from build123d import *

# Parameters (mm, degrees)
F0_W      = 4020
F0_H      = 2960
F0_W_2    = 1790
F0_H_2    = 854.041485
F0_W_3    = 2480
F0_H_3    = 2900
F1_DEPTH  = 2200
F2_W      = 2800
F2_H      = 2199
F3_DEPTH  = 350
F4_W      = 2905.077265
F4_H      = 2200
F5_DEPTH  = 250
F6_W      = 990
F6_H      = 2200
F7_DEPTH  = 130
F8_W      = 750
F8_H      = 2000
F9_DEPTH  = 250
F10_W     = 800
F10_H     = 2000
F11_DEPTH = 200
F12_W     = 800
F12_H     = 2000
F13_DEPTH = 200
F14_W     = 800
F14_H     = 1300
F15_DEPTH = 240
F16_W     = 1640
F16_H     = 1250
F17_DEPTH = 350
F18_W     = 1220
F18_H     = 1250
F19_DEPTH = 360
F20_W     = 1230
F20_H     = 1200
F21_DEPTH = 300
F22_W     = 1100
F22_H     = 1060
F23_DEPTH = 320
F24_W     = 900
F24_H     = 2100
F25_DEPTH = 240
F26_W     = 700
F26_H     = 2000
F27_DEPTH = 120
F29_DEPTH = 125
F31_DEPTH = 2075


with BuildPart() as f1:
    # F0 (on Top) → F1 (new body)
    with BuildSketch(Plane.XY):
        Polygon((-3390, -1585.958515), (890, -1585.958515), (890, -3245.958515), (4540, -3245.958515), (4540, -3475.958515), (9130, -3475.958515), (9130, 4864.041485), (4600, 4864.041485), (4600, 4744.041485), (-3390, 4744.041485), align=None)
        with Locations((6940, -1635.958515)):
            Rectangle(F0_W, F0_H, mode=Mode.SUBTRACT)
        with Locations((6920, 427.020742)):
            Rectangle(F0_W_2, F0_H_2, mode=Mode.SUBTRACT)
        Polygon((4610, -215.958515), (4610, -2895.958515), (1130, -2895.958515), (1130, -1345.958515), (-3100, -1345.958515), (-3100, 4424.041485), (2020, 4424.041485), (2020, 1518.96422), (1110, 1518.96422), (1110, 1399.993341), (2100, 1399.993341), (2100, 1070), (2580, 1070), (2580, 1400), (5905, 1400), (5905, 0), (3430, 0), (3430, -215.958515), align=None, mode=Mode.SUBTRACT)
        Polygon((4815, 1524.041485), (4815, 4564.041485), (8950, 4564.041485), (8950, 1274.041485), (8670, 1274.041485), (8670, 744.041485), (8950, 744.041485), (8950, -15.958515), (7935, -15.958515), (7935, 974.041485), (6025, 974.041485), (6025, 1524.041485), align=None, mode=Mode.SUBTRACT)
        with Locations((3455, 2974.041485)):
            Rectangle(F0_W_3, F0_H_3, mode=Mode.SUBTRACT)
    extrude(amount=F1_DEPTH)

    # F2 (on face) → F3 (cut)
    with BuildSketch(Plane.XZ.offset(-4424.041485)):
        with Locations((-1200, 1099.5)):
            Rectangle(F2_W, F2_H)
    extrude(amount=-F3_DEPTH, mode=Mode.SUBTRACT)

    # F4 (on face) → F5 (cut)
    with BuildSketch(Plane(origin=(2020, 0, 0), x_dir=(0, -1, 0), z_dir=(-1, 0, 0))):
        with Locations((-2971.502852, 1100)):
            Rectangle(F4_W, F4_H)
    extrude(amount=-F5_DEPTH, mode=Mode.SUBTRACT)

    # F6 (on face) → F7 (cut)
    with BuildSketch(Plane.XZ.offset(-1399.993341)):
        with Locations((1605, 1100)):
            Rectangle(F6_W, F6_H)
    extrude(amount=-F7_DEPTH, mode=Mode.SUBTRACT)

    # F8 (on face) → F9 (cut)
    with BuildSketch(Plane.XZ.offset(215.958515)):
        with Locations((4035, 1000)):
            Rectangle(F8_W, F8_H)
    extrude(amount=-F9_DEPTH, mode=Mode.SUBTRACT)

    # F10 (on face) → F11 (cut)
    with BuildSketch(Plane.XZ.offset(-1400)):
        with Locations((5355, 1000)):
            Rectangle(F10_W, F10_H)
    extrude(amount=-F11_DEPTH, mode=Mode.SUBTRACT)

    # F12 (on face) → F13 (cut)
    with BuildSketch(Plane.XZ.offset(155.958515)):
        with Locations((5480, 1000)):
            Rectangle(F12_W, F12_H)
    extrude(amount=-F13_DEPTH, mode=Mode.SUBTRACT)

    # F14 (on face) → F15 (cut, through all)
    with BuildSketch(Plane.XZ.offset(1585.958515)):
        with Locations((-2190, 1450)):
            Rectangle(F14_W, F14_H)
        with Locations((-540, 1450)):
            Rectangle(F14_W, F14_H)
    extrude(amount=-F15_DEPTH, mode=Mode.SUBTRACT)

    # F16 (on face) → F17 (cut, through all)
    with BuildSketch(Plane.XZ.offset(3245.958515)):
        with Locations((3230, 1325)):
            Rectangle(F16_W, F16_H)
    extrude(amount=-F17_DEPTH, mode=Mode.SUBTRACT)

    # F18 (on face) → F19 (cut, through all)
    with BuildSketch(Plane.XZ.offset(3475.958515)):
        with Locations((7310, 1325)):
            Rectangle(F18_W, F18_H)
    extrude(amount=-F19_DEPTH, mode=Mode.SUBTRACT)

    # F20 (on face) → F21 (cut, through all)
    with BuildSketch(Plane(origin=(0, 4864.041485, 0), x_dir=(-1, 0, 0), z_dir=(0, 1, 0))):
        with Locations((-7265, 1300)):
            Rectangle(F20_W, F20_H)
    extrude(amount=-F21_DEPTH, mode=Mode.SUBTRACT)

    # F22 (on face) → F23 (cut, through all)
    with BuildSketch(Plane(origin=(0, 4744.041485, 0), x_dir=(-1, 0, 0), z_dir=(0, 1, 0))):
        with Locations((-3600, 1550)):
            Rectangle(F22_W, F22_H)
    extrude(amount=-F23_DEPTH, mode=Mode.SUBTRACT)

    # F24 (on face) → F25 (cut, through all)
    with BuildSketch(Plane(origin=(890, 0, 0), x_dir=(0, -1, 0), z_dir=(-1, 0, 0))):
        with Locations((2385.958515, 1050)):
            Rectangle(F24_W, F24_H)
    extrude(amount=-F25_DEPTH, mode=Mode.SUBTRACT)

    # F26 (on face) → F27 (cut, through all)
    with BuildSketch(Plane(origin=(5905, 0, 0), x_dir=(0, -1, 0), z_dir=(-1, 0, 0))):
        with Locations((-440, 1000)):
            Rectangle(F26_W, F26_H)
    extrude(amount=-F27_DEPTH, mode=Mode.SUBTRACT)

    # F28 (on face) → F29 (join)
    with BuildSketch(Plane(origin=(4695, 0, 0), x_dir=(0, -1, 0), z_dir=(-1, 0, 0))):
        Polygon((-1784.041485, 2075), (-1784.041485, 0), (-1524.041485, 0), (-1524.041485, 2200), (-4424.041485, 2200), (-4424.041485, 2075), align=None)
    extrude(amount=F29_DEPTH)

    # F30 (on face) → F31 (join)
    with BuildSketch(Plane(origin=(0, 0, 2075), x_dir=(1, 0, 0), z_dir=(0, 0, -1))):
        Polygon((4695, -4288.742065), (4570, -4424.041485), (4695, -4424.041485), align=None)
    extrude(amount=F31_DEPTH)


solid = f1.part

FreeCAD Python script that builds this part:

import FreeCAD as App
import Part
import Sketcher
from FreeCAD import Vector
Q = App.Units.Quantity

doc = App.newDocument("Part")
body = doc.addObject("PartDesign::Body", "Body")

sketch1 = body.newObject("Sketcher::SketchObject", "Sketch")
sketch1.AttachmentSupport = (doc.getObject("XY_Plane"), [""])
sketch1.MapMode = "FlatFace"
sketch1.addGeometry(Part.LineSegment(Vector(-3390, -1586, 0), Vector(890, -1586, 0)), False)
sketch1.addGeometry(Part.LineSegment(Vector(890, -1586, 0), Vector(890, -3246, 0)), False)
sketch1.addGeometry(Part.LineSegment(Vector(890, -3246, 0), Vector(4540, -3246, 0)), False)
sketch1.addGeometry(Part.LineSegment(Vector(4540, -3246, 0), Vector(4540, -3476, 0)), False)
sketch1.addGeometry(Part.LineSegment(Vector(4540, -3476, 0), Vector(9130, -3476, 0)), False)
sketch1.addGeometry(Part.LineSegment(Vector(9130, -3476, 0), Vector(9130, 4864, 0)), False)
sketch1.addGeometry(Part.LineSegment(Vector(9130, 4864, 0), Vector(4600, 4864, 0)), False)
sketch1.addGeometry(Part.LineSegment(Vector(4600, 4864, 0), Vector(4600, 4744, 0)), False)
sketch1.addGeometry(Part.LineSegment(Vector(4600, 4744, 0), Vector(-3390, 4744, 0)), False)
sketch1.addGeometry(Part.LineSegment(Vector(-3390, 4744, 0), Vector(-3390, -1586, 0)), False)
sketch1.addGeometry(Part.LineSegment(Vector(8950, -3116, 0), Vector(4930, -3116, 0)), False)
sketch1.addGeometry(Part.LineSegment(Vector(4930, -3116, 0), Vector(4930, -156, 0)), False)
sketch1.addGeometry(Part.LineSegment(Vector(4930, -156, 0), Vector(8950, -156, 0)), False)
sketch1.addGeometry(Part.LineSegment(Vector(8950, -156, 0), Vector(8950, -3116, 0)), False)
sketch1.addGeometry(Part.LineSegment(Vector(7815, 0, 0), Vector(6025, 0, 0)), False)
sketch1.addGeometry(Part.LineSegment(Vector(6025, 0, 0), Vector(6025, 854, 0)), False)
sketch1.addGeometry(Part.LineSegment(Vector(6025, 854, 0), Vector(7815, 854, 0)), False)
sketch1.addGeometry(Part.LineSegment(Vector(7815, 854, 0), Vector(7815, 0, 0)), False)
sketch1.addGeometry(Part.LineSegment(Vector(3430, -216, 0), Vector(4610, -216, 0)), False)
sketch1.addGeometry(Part.LineSegment(Vector(4610, -216, 0), Vector(4610, -2896, 0)), False)
sketch1.addGeometry(Part.LineSegment(Vector(4610, -2896, 0), Vector(1130, -2896, 0)), False)
sketch1.addGeometry(Part.LineSegment(Vector(1130, -2896, 0), Vector(1130, -1346, 0)), False)
sketch1.addGeometry(Part.LineSegment(Vector(1130, -1346, 0), Vector(-3100, -1346, 0)), False)
sketch1.addGeometry(Part.LineSegment(Vector(-3100, -1346, 0), Vector(-3100, 4424, 0)), False)
sketch1.addGeometry(Part.LineSegment(Vector(-3100, 4424, 0), Vector(2020, 4424, 0)), False)
sketch1.addGeometry(Part.LineSegment(Vector(2020, 4424, 0), Vector(2020, 1519, 0)), False)
sketch1.addGeometry(Part.LineSegment(Vector(2020, 1519, 0), Vector(1110, 1519, 0)), False)
sketch1.addGeometry(Part.LineSegment(Vector(1110, 1519, 0), Vector(1110, 1400, 0)), False)
sketch1.addGeometry(Part.LineSegment(Vector(1110, 1400, 0), Vector(2100, 1400, 0)), False)
sketch1.addGeometry(Part.LineSegment(Vector(2100, 1400, 0), Vector(2100, 1070, 0)), False)
sketch1.addGeometry(Part.LineSegment(Vector(2100, 1070, 0), Vector(2580, 1070, 0)), False)
sketch1.addGeometry(Part.LineSegment(Vector(2580, 1070, 0), Vector(2580, 1400, 0)), False)
sketch1.addGeometry(Part.LineSegment(Vector(2580, 1400, 0), Vector(5905, 1400, 0)), False)
sketch1.addGeometry(Part.LineSegment(Vector(5905, 1400, 0), Vector(5905, 0, 0)), False)
sketch1.addGeometry(Part.LineSegment(Vector(5905, 0, 0), Vector(3430, 0, 0)), False)
sketch1.addGeometry(Part.LineSegment(Vector(3430, 0, 0), Vector(3430, -216, 0)), False)
sketch1.addGeometry(Part.LineSegment(Vector(6025, 1524, 0), Vector(4815, 1524, 0)), False)
sketch1.addGeometry(Part.LineSegment(Vector(4815, 1524, 0), Vector(4815, 4564, 0)), False)
sketch1.addGeometry(Part.LineSegment(Vector(4815, 4564, 0), Vector(8950, 4564, 0)), False)
sketch1.addGeometry(Part.LineSegment(Vector(8950, 4564, 0), Vector(8950, 1274, 0)), False)
sketch1.addGeometry(Part.LineSegment(Vector(8950, 1274, 0), Vector(8670, 1274, 0)), False)
sketch1.addGeometry(Part.LineSegment(Vector(8670, 1274, 0), Vector(8670, 744, 0)), False)
sketch1.addGeometry(Part.LineSegment(Vector(8670, 744, 0), Vector(8950, 744, 0)), False)
sketch1.addGeometry(Part.LineSegment(Vector(8950, 744, 0), Vector(8950, -16, 0)), False)
sketch1.addGeometry(Part.LineSegment(Vector(8950, -16, 0), Vector(7935, -16, 0)), False)
sketch1.addGeometry(Part.LineSegment(Vector(7935, -16, 0), Vector(7935, 974, 0)), False)
sketch1.addGeometry(Part.LineSegment(Vector(7935, 974, 0), Vector(6025, 974, 0)), False)
sketch1.addGeometry(Part.LineSegment(Vector(6025, 974, 0), Vector(6025, 1524, 0)), False)
sketch1.addGeometry(Part.LineSegment(Vector(4695, 1524, 0), Vector(2215, 1524, 0)), False)
sketch1.addGeometry(Part.LineSegment(Vector(2215, 1524, 0), Vector(2215, 4424, 0)), False)
sketch1.addGeometry(Part.LineSegment(Vector(2215, 4424, 0), Vector(4695, 4424, 0)), False)
sketch1.addGeometry(Part.LineSegment(Vector(4695, 4424, 0), Vector(4695, 1524, 0)), False)
sketch1.addConstraint(Sketcher.Constraint("Coincident", 0, 2, 1, 1))
sketch1.addConstraint(Sketcher.Constraint("Coincident", 1, 2, 2, 1))
sketch1.addConstraint(Sketcher.Constraint("Coincident", 2, 2, 3, 1))
sketch1.addConstraint(Sketcher.Constraint("Coincident", 3, 2, 4, 1))
sketch1.addConstraint(Sketcher.Constraint("Coincident", 4, 2, 5, 1))
sketch1.addConstraint(Sketcher.Constraint("Coincident", 5, 2, 6, 1))
sketch1.addConstraint(Sketcher.Constraint("Coincident", 6, 2, 7, 1))
sketch1.addConstraint(Sketcher.Constraint("Coincident", 7, 2, 8, 1))
sketch1.addConstraint(Sketcher.Constraint("Coincident", 8, 2, 9, 1))
sketch1.addConstraint(Sketcher.Constraint("Coincident", 9, 2, 0, 1))
sketch1.addConstraint(Sketcher.Constraint("Coincident", 10, 2, 11, 1))
sketch1.addConstraint(Sketcher.Constraint("Coincident", 11, 2, 12, 1))
sketch1.addConstraint(Sketcher.Constraint("Coincident", 12, 2, 13, 1))
sketch1.addConstraint(Sketcher.Constraint("Coincident", 13, 2, 10, 1))
sketch1.addConstraint(Sketcher.Constraint("Coincident", 14, 2, 15, 1))
sketch1.addConstraint(Sketcher.Constraint("Coincident", 15, 2, 16, 1))
sketch1.addConstraint(Sketcher.Constraint("Coincident", 16, 2, 17, 1))
sketch1.addConstraint(Sketcher.Constraint("Coincident", 17, 2, 14, 1))
sketch1.addConstraint(Sketcher.Constraint("Coincident", 18, 2, 19, 1))
sketch1.addConstraint(Sketcher.Constraint("Coincident", 19, 2, 20, 1))
sketch1.addConstraint(Sketcher.Constraint("Coincident", 20, 2, 21, 1))
sketch1.addConstraint(Sketcher.Constraint("Coincident", 21, 2, 22, 1))
sketch1.addConstraint(Sketcher.Constraint("Coincident", 22, 2, 23, 1))
sketch1.addConstraint(Sketcher.Constraint("Coincident", 23, 2, 24, 1))
sketch1.addConstraint(Sketcher.Constraint("Coincident", 24, 2, 25, 1))
sketch1.addConstraint(Sketcher.Constraint("Coincident", 25, 2, 26, 1))
sketch1.addConstraint(Sketcher.Constraint("Coincident", 26, 2, 27, 1))
sketch1.addConstraint(Sketcher.Constraint("Coincident", 27, 2, 28, 1))
sketch1.addConstraint(Sketcher.Constraint("Coincident", 28, 2, 29, 1))
sketch1.addConstraint(Sketcher.Constraint("Coincident", 29, 2, 30, 1))
sketch1.addConstraint(Sketcher.Constraint("Coincident", 30, 2, 31, 1))
sketch1.addConstraint(Sketcher.Constraint("Coincident", 31, 2, 32, 1))
sketch1.addConstraint(Sketcher.Constraint("Coincident", 32, 2, 33, 1))
sketch1.addConstraint(Sketcher.Constraint("Coincident", 33, 2, 34, 1))
sketch1.addConstraint(Sketcher.Constraint("Coincident", 34, 2, 35, 1))
sketch1.addConstraint(Sketcher.Constraint("Coincident", 35, 2, 18, 1))
sketch1.addConstraint(Sketcher.Constraint("Coincident", 36, 2, 37, 1))
sketch1.addConstraint(Sketcher.Constraint("Coincident", 37, 2, 38, 1))
sketch1.addConstraint(Sketcher.Constraint("Coincident", 38, 2, 39, 1))
sketch1.addConstraint(Sketcher.Constraint("Coincident", 39, 2, 40, 1))
sketch1.addConstraint(Sketcher.Constraint("Coincident", 40, 2, 41, 1))
sketch1.addConstraint(Sketcher.Constraint("Coincident", 41, 2, 42, 1))
sketch1.addConstraint(Sketcher.Constraint("Coincident", 42, 2, 43, 1))
sketch1.addConstraint(Sketcher.Constraint("Coincident", 43, 2, 44, 1))
sketch1.addConstraint(Sketcher.Constraint("Coincident", 44, 2, 45, 1))
sketch1.addConstraint(Sketcher.Constraint("Coincident", 45, 2, 46, 1))
sketch1.addConstraint(Sketcher.Constraint("Coincident", 46, 2, 47, 1))
sketch1.addConstraint(Sketcher.Constraint("Coincident", 47, 2, 36, 1))
sketch1.addConstraint(Sketcher.Constraint("Coincident", 48, 2, 49, 1))
sketch1.addConstraint(Sketcher.Constraint("Coincident", 49, 2, 50, 1))
sketch1.addConstraint(Sketcher.Constraint("Coincident", 50, 2, 51, 1))
sketch1.addConstraint(Sketcher.Constraint("Coincident", 51, 2, 48, 1))
sketch1.addConstraint(Sketcher.Constraint("Horizontal", 0))
sketch1.addConstraint(Sketcher.Constraint("Vertical", 1))
sketch1.addConstraint(Sketcher.Constraint("Horizontal", 2))
sketch1.addConstraint(Sketcher.Constraint("Vertical", 3))
sketch1.addConstraint(Sketcher.Constraint("Horizontal", 4))
sketch1.addConstraint(Sketcher.Constraint("Vertical", 5))
sketch1.addConstraint(Sketcher.Constraint("Horizontal", 6))
sketch1.addConstraint(Sketcher.Constraint("Vertical", 7))
sketch1.addConstraint(Sketcher.Constraint("Horizontal", 8))
sketch1.addConstraint(Sketcher.Constraint("Vertical", 9))
sketch1.addConstraint(Sketcher.Constraint("Horizontal", 10))
sketch1.addConstraint(Sketcher.Constraint("Vertical", 11))
sketch1.addConstraint(Sketcher.Constraint("Horizontal", 12))
sketch1.addConstraint(Sketcher.Constraint("Vertical", 13))
sketch1.addConstraint(Sketcher.Constraint("Horizontal", 14))
sketch1.addConstraint(Sketcher.Constraint("Vertical", 15))
sketch1.addConstraint(Sketcher.Constraint("Horizontal", 16))
sketch1.addConstraint(Sketcher.Constraint("Vertical", 17))
sketch1.addConstraint(Sketcher.Constraint("Horizontal", 18))
sketch1.addConstraint(Sketcher.Constraint("Vertical", 19))
sketch1.addConstraint(Sketcher.Constraint("Horizontal", 20))
sketch1.addConstraint(Sketcher.Constraint("Vertical", 21))
sketch1.addConstraint(Sketcher.Constraint("Horizontal", 22))
sketch1.addConstraint(Sketcher.Constraint("Vertical", 23))
sketch1.addConstraint(Sketcher.Constraint("Horizontal", 24))
sketch1.addConstraint(Sketcher.Constraint("Vertical", 25))
sketch1.addConstraint(Sketcher.Constraint("Horizontal", 26))
sketch1.addConstraint(Sketcher.Constraint("Vertical", 27))
sketch1.addConstraint(Sketcher.Constraint("Horizontal", 28))
sketch1.addConstraint(Sketcher.Constraint("Vertical", 29))
sketch1.addConstraint(Sketcher.Constraint("Horizontal", 30))
sketch1.addConstraint(Sketcher.Constraint("Vertical", 31))
sketch1.addConstraint(Sketcher.Constraint("Horizontal", 32))
sketch1.addConstraint(Sketcher.Constraint("Vertical", 33))
sketch1.addConstraint(Sketcher.Constraint("Horizontal", 34))
sketch1.addConstraint(Sketcher.Constraint("Vertical", 35))
sketch1.addConstraint(Sketcher.Constraint("Horizontal", 36))
sketch1.addConstraint(Sketcher.Constraint("Vertical", 37))
sketch1.addConstraint(Sketcher.Constraint("Horizontal", 38))
sketch1.addConstraint(Sketcher.Constraint("Vertical", 39))
sketch1.addConstraint(Sketcher.Constraint("Horizontal", 40))
sketch1.addConstraint(Sketcher.Constraint("Vertical", 41))
sketch1.addConstraint(Sketcher.Constraint("Horizontal", 42))
sketch1.addConstraint(Sketcher.Constraint("Vertical", 43))
sketch1.addConstraint(Sketcher.Constraint("Horizontal", 44))
sketch1.addConstraint(Sketcher.Constraint("Vertical", 45))
sketch1.addConstraint(Sketcher.Constraint("Horizontal", 46))
sketch1.addConstraint(Sketcher.Constraint("Vertical", 47))
sketch1.addConstraint(Sketcher.Constraint("Horizontal", 48))
sketch1.addConstraint(Sketcher.Constraint("Vertical", 49))
sketch1.addConstraint(Sketcher.Constraint("Horizontal", 50))
sketch1.addConstraint(Sketcher.Constraint("Vertical", 51))
sketch1.addConstraint(Sketcher.Constraint("PointOnObject", 14, 2, -1))
sketch1.addConstraint(Sketcher.Constraint("PointOnObject", 33, 2, -1))
sketch1.addConstraint(Sketcher.Constraint("Horizontal", 47, 2, 48, 2))
sketch1.addConstraint(Sketcher.Constraint("Horizontal", 24, 2, 49, 2))
sketch1.addConstraint(Sketcher.Constraint("Vertical", 13, 2, 38, 2))
sketch1.addConstraint(Sketcher.Constraint("Vertical", 39, 2, 42, 2))
sketch1.addConstraint(Sketcher.Constraint("Vertical", 15, 2, 46, 2))
sketch1.addConstraint(Sketcher.Constraint("Equal", 28, 45))
sketch1.addConstraint(Sketcher.Constraint("DistanceX", 0, 1, 0, 2, Q("4280 mm")))
sketch1.addConstraint(Sketcher.Constraint("DistanceX", 2, 1, 2, 2, Q("3650 mm")))
sketch1.addConstraint(Sketcher.Constraint("DistanceX", 4, 1, 4, 2, Q("4590 mm")))
sketch1.addConstraint(Sketcher.Constraint("DistanceX", 6, 2, 6, 1, Q("4530 mm")))
sketch1.addConstraint(Sketcher.Constraint("DistanceX", 10, 2, 10, 1, Q("4020 mm")))
sketch1.addConstraint(Sketcher.Constraint("DistanceX", 14, 2, 14, 1, Q("1790 mm")))
sketch1.addConstraint(Sketcher.Constraint("DistanceX", 18, 1, 18, 2, Q("1180 mm")))
sketch1.addConstraint(Sketcher.Constraint("DistanceX", 20, 2, 20, 1, Q("3480 mm")))
sketch1.addConstraint(Sketcher.Constraint("DistanceX", 22, 2, 22, 1, Q("4230 mm")))
sketch1.addConstraint(Sketcher.Constraint("DistanceX", 24, 1, 24, 2, Q("5120 mm")))
sketch1.addConstraint(Sketcher.Constraint("DistanceX", 26, 2, 26, 1, Q("910 mm")))
sketch1.addConstraint(Sketcher.Constraint("DistanceX", 28, 1, 28, 2, Q("990 mm")))
sketch1.addConstraint(Sketcher.Constraint("DistanceX", 30, 1, 30, 2, Q("480 mm")))
sketch1.addConstraint(Sketcher.Constraint("DistanceX", 32, 1, 32, 2, Q("3325 mm")))
sketch1.addConstraint(Sketcher.Constraint("DistanceX", 36, 2, 36, 1, Q("1210 mm")))
sketch1.addConstraint(Sketcher.Constraint("DistanceX", 38, 1, 38, 2, Q("4135 mm")))
sketch1.addConstraint(Sketcher.Constraint("DistanceX", 40, 2, 40, 1, Q("280 mm")))
sketch1.addConstraint(Sketcher.Constraint("DistanceX", 44, 2, 44, 1, Q("1015 mm")))
sketch1.addConstraint(Sketcher.Constraint("DistanceX", 48, 2, 48, 1, Q("2480 mm")))
sketch1.addConstraint(Sketcher.Constraint("DistanceY", 1, 2, 1, 1, Q("1660 mm")))
sketch1.addConstraint(Sketcher.Constraint("DistanceY", 3, 2, 3, 1, Q("230 mm")))
sketch1.addConstraint(Sketcher.Constraint("DistanceY", 5, 1, 5, 2, Q("8340 mm")))
sketch1.addConstraint(Sketcher.Constraint("DistanceY", 7, 2, 7, 1, Q("120 mm")))
sketch1.addConstraint(Sketcher.Constraint("DistanceY", 11, 1, 11, 2, Q("2960 mm")))
sketch1.addConstraint(Sketcher.Constraint("DistanceY", 19, 2, 19, 1, Q("2680 mm")))
sketch1.addConstraint(Sketcher.Constraint("DistanceY", 21, 1, 21, 2, Q("1550 mm")))
sketch1.addConstraint(Sketcher.Constraint("DistanceY", 23, 1, 23, 2, Q("5770 mm")))
sketch1.addConstraint(Sketcher.Constraint("DistanceY", 31, 1, 31, 2, Q("330 mm")))
sketch1.addConstraint(Sketcher.Constraint("DistanceY", 33, 2, 33, 1, Q("1400 mm")))
sketch1.addConstraint(Sketcher.Constraint("DistanceY", 37, 1, 37, 2, Q("3040 mm")))
sketch1.addConstraint(Sketcher.Constraint("DistanceY", 39, 2, 39, 1, Q("3290 mm")))
sketch1.addConstraint(Sketcher.Constraint("DistanceY", 41, 2, 41, 1, Q("530 mm")))
sketch1.addConstraint(Sketcher.Constraint("DistanceY", 43, 2, 43, 1, Q("760 mm")))
sketch1.addConstraint(Sketcher.Constraint("DistanceY", 49, 1, 49, 2, Q("2900 mm")))
sketch1.addConstraint(Sketcher.Constraint("DistanceX", -1, 1, 0, 2, Q("890 mm")))
sketch1.addConstraint(Sketcher.Constraint("DistanceX", -1, 1, 10, 2, Q("4930 mm")))
sketch1.addConstraint(Sketcher.Constraint("DistanceX", -1, 1, 18, 2, Q("4610 mm")))
sketch1.addConstraint(Sketcher.Constraint("DistanceX", -1, 1, 48, 2, Q("2215 mm")))
sketch1.addConstraint(Sketcher.Constraint("DistanceY", 2, 2, 10, 2, Q("130 mm")))
sketch1.addConstraint(Sketcher.Constraint("DistanceY", 11, 2, 15, 2, Q("1010 mm")))
sketch1.addConstraint(Sketcher.Constraint("DistanceY", 18, 2, 11, 2, Q("60 mm")))
sketch1.addConstraint(Sketcher.Constraint("DistanceY", 27, 2, 27, 1, Q("118.970879 mm")))
sketch1.addConstraint(Sketcher.Constraint("DistanceY", 29, 2, 29, 1, Q("329.993341 mm")))
sketch1.addConstraint(Sketcher.Constraint("DistanceY", 15, 1, 15, 2, Q("854.041485 mm")))
pad1 = body.newObject("PartDesign::Pad", "Pad")
pad1.Profile = sketch1
pad1.Length = 2200

sketch2 = body.newObject("Sketcher::SketchObject", "Sketch001")
sketch2.AttachmentSupport = (doc.getObject("XZ_Plane"), [""])
sketch2.MapMode = "FlatFace"
sketch2.AttachmentOffset = App.Placement(Vector(0, 0, -4424.041485), App.Rotation())
sketch2.addGeometry(Part.LineSegment(Vector(-2600, 2199, 0), Vector(-2600, 0, 0)), False)
sketch2.addGeometry(Part.LineSegment(Vector(-2600, 0, 0), Vector(200, 0, 0)), False)
sketch2.addGeometry(Part.LineSegment(Vector(200, 0, 0), Vector(200, 2199, 0)), False)
sketch2.addGeometry(Part.LineSegment(Vector(200, 2199, 0), Vector(-2600, 2199, 0)), False)
sketch2.addConstraint(Sketcher.Constraint("Coincident", 0, 2, 1, 1))
sketch2.addConstraint(Sketcher.Constraint("Coincident", 1, 2, 2, 1))
sketch2.addConstraint(Sketcher.Constraint("Coincident", 2, 2, 3, 1))
sketch2.addConstraint(Sketcher.Constraint("Coincident", 3, 2, 0, 1))
sketch2.addConstraint(Sketcher.Constraint("Vertical", 0))
sketch2.addConstraint(Sketcher.Constraint("Horizontal", 1))
sketch2.addConstraint(Sketcher.Constraint("Vertical", 2))
sketch2.addConstraint(Sketcher.Constraint("Horizontal", 3))
sketch2.addConstraint(Sketcher.Constraint("PointOnObject", 0, 2, -1))
sketch2.addConstraint(Sketcher.Constraint("DistanceX", 1, 1, 1, 2, Q("2800 mm")))
sketch2.addConstraint(Sketcher.Constraint("DistanceY", 0, 2, 0, 1, Q("2199 mm")))
sketch2.addConstraint(Sketcher.Constraint("DistanceX", 0, 2, -1, 1, Q("2600 mm")))
pocket1 = body.newObject("PartDesign::Pocket", "Pocket")
pocket1.Profile = sketch2
pocket1.Length = 350

sketch3 = body.newObject("Sketcher::SketchObject", "Sketch002")
sketch3.AttachmentSupport = (doc.getObject("YZ_Plane"), [""])
sketch3.MapMode = "FlatFace"
sketch3.AttachmentOffset = App.Placement(Vector(0, 0, 2020), App.Rotation())
sketch3.addGeometry(Part.LineSegment(Vector(4424, 2200, 0), Vector(4424, 0, 0)), False)
sketch3.addGeometry(Part.LineSegment(Vector(4424, 0, 0), Vector(1519, 0, 0)), False)
sketch3.addGeometry(Part.LineSegment(Vector(1519, 0, 0), Vector(1519, 2200, 0)), False)
sketch3.addGeometry(Part.LineSegment(Vector(1519, 2200, 0), Vector(4424, 2200, 0)), False)
sketch3.addConstraint(Sketcher.Constraint("Coincident", 0, 2, 1, 1))
sketch3.addConstraint(Sketcher.Constraint("Coincident", 1, 2, 2, 1))
sketch3.addConstraint(Sketcher.Constraint("Coincident", 2, 2, 3, 1))
sketch3.addConstraint(Sketcher.Constraint("Coincident", 3, 2, 0, 1))
sketch3.addConstraint(Sketcher.Constraint("Vertical", 0))
sketch3.addConstraint(Sketcher.Constraint("Horizontal", 1))
sketch3.addConstraint(Sketcher.Constraint("Vertical", 2))
sketch3.addConstraint(Sketcher.Constraint("Horizontal", 3))
sketch3.addConstraint(Sketcher.Constraint("PointOnObject", 0, 2, -1))
sketch3.addConstraint(Sketcher.Constraint("DistanceY", 0, 2, 0, 1, Q("2200 mm")))
sketch3.addConstraint(Sketcher.Constraint("DistanceX", 1, 2, 1, 1, Q("2905.077265 mm")))
sketch3.addConstraint(Sketcher.Constraint("DistanceX", -1, 1, 1, 2, Q("1518.964219 mm")))
pocket2 = body.newObject("PartDesign::Pocket", "Pocket001")
pocket2.Profile = sketch3
pocket2.Length = 250
pocket2.Reversed = True

sketch4 = body.newObject("Sketcher::SketchObject", "Sketch003")
sketch4.AttachmentSupport = (doc.getObject("XZ_Plane"), [""])
sketch4.MapMode = "FlatFace"
sketch4.AttachmentOffset = App.Placement(Vector(0, 0, -1399.993341), App.Rotation())
sketch4.addGeometry(Part.LineSegment(Vector(1110, 2200, 0), Vector(1110, 0, 0)), False)
sketch4.addGeometry(Part.LineSegment(Vector(1110, 0, 0), Vector(2100, 0, 0)), False)
sketch4.addGeometry(Part.LineSegment(Vector(2100, 0, 0), Vector(2100, 2200, 0)), False)
sketch4.addGeometry(Part.LineSegment(Vector(2100, 2200, 0), Vector(1110, 2200, 0)), False)
sketch4.addConstraint(Sketcher.Constraint("Coincident", 0, 2, 1, 1))
sketch4.addConstraint(Sketcher.Constraint("Coincident", 1, 2, 2, 1))
sketch4.addConstraint(Sketcher.Constraint("Coincident", 2, 2, 3, 1))
sketch4.addConstraint(Sketcher.Constraint("Coincident", 3, 2, 0, 1))
sketch4.addConstraint(Sketcher.Constraint("Vertical", 0))
sketch4.addConstraint(Sketcher.Constraint("Horizontal", 1))
sketch4.addConstraint(Sketcher.Constraint("Vertical", 2))
sketch4.addConstraint(Sketcher.Constraint("Horizontal", 3))
sketch4.addConstraint(Sketcher.Constraint("PointOnObject", 0, 2, -1))
sketch4.addConstraint(Sketcher.Constraint("DistanceX", 1, 1, 1, 2, Q("990 mm")))
sketch4.addConstraint(Sketcher.Constraint("DistanceY", 0, 2, 0, 1, Q("2200 mm")))
sketch4.addConstraint(Sketcher.Constraint("DistanceX", -1, 1, 0, 2, Q("1110 mm")))
pocket3 = body.newObject("PartDesign::Pocket", "Pocket002")
pocket3.Profile = sketch4
pocket3.Length = 130

sketch5 = body.newObject("Sketcher::SketchObject", "Sketch004")
sketch5.AttachmentSupport = (doc.getObject("XZ_Plane"), [""])
sketch5.MapMode = "FlatFace"
sketch5.AttachmentOffset = App.Placement(Vector(0, 0, 215.958515), App.Rotation())
sketch5.addGeometry(Part.LineSegment(Vector(3660, 2000, 0), Vector(3660, 0, 0)), False)
sketch5.addGeometry(Part.LineSegment(Vector(3660, 0, 0), Vector(4410, 0, 0)), False)
sketch5.addGeometry(Part.LineSegment(Vector(4410, 0, 0), Vector(4410, 2000, 0)), False)
sketch5.addGeometry(Part.LineSegment(Vector(4410, 2000, 0), Vector(3660, 2000, 0)), False)
sketch5.addConstraint(Sketcher.Constraint("Coincident", 0, 2, 1, 1))
sketch5.addConstraint(Sketcher.Constraint("Coincident", 1, 2, 2, 1))
sketch5.addConstraint(Sketcher.Constraint("Coincident", 2, 2, 3, 1))
sketch5.addConstraint(Sketcher.Constraint("Coincident", 3, 2, 0, 1))
sketch5.addConstraint(Sketcher.Constraint("Vertical", 0))
sketch5.addConstraint(Sketcher.Constraint("Horizontal", 1))
sketch5.addConstraint(Sketcher.Constraint("Vertical", 2))
sketch5.addConstraint(Sketcher.Constraint("Horizontal", 3))
sketch5.addConstraint(Sketcher.Constraint("PointOnObject", 0, 2, -1))
sketch5.addConstraint(Sketcher.Constraint("DistanceX", 1, 1, 1, 2, Q("750 mm")))
sketch5.addConstraint(Sketcher.Constraint("DistanceY", 0, 2, 0, 1, Q("2000 mm")))
sketch5.addConstraint(Sketcher.Constraint("DistanceX", -1, 1, 0, 2, Q("3660 mm")))
pocket4 = body.newObject("PartDesign::Pocket", "Pocket003")
pocket4.Profile = sketch5
pocket4.Length = 250

sketch6 = body.newObject("Sketcher::SketchObject", "Sketch005")
sketch6.AttachmentSupport = (doc.getObject("XZ_Plane"), [""])
sketch6.MapMode = "FlatFace"
sketch6.AttachmentOffset = App.Placement(Vector(0, 0, -1400), App.Rotation())
sketch6.addGeometry(Part.LineSegment(Vector(4955, 2000, 0), Vector(4955, 0, 0)), False)
sketch6.addGeometry(Part.LineSegment(Vector(4955, 0, 0), Vector(5755, 0, 0)), False)
sketch6.addGeometry(Part.LineSegment(Vector(5755, 0, 0), Vector(5755, 2000, 0)), False)
sketch6.addGeometry(Part.LineSegment(Vector(5755, 2000, 0), Vector(4955, 2000, 0)), False)
sketch6.addConstraint(Sketcher.Constraint("Coincident", 0, 2, 1, 1))
sketch6.addConstraint(Sketcher.Constraint("Coincident", 1, 2, 2, 1))
sketch6.addConstraint(Sketcher.Constraint("Coincident", 2, 2, 3, 1))
sketch6.addConstraint(Sketcher.Constraint("Coincident", 3, 2, 0, 1))
sketch6.addConstraint(Sketcher.Constraint("Vertical", 0))
sketch6.addConstraint(Sketcher.Constraint("Horizontal", 1))
sketch6.addConstraint(Sketcher.Constraint("Vertical", 2))
sketch6.addConstraint(Sketcher.Constraint("Horizontal", 3))
sketch6.addConstraint(Sketcher.Constraint("PointOnObject", 0, 2, -1))
sketch6.addConstraint(Sketcher.Constraint("DistanceX", 1, 1, 1, 2, Q("800 mm")))
sketch6.addConstraint(Sketcher.Constraint("DistanceY", 0, 2, 0, 1, Q("2000 mm")))
sketch6.addConstraint(Sketcher.Constraint("DistanceX", -1, 1, 0, 2, Q("4955 mm")))
pocket5 = body.newObject("PartDesign::Pocket", "Pocket004")
pocket5.Profile = sketch6
pocket5.Length = 200

sketch7 = body.newObject("Sketcher::SketchObject", "Sketch006")
sketch7.AttachmentSupport = (doc.getObject("XZ_Plane"), [""])
sketch7.MapMode = "FlatFace"
sketch7.AttachmentOffset = App.Placement(Vector(0, 0, 155.958515), App.Rotation())
sketch7.addGeometry(Part.LineSegment(Vector(5080, 2000, 0), Vector(5080, 0, 0)), False)
sketch7.addGeometry(Part.LineSegment(Vector(5080, 0, 0), Vector(5880, 0, 0)), False)
sketch7.addGeometry(Part.LineSegment(Vector(5880, 0, 0), Vector(5880, 2000, 0)), False)
sketch7.addGeometry(Part.LineSegment(Vector(5880, 2000, 0), Vector(5080, 2000, 0)), False)
sketch7.addConstraint(Sketcher.Constraint("Coincident", 0, 2, 1, 1))
sketch7.addConstraint(Sketcher.Constraint("Coincident", 1, 2, 2, 1))
sketch7.addConstraint(Sketcher.Constraint("Coincident", 2, 2, 3, 1))
sketch7.addConstraint(Sketcher.Constraint("Coincident", 3, 2, 0, 1))
sketch7.addConstraint(Sketcher.Constraint("Vertical", 0))
sketch7.addConstraint(Sketcher.Constraint("Horizontal", 1))
sketch7.addConstraint(Sketcher.Constraint("Vertical", 2))
sketch7.addConstraint(Sketcher.Constraint("Horizontal", 3))
sketch7.addConstraint(Sketcher.Constraint("PointOnObject", 0, 2, -1))
sketch7.addConstraint(Sketcher.Constraint("DistanceX", 1, 1, 1, 2, Q("800 mm")))
sketch7.addConstraint(Sketcher.Constraint("DistanceY", 0, 2, 0, 1, Q("2000 mm")))
sketch7.addConstraint(Sketcher.Constraint("DistanceX", -1, 1, 0, 2, Q("5080 mm")))
pocket6 = body.newObject("PartDesign::Pocket", "Pocket005")
pocket6.Profile = sketch7
pocket6.Length = 200

sketch8 = body.newObject("Sketcher::SketchObject", "Sketch007")
sketch8.AttachmentSupport = (doc.getObject("XZ_Plane"), [""])
sketch8.MapMode = "FlatFace"
sketch8.AttachmentOffset = App.Placement(Vector(0, 0, 1585.958515), App.Rotation())
sketch8.addGeometry(Part.LineSegment(Vector(-2590, 2100, 0), Vector(-2590, 800, 0)), False)
sketch8.addGeometry(Part.LineSegment(Vector(-2590, 800, 0), Vector(-1790, 800, 0)), False)
sketch8.addGeometry(Part.LineSegment(Vector(-1790, 800, 0), Vector(-1790, 2100, 0)), False)
sketch8.addGeometry(Part.LineSegment(Vector(-1790, 2100, 0), Vector(-2590, 2100, 0)), False)
sketch8.addGeometry(Part.LineSegment(Vector(-940, 2100, 0), Vector(-940, 800, 0)), False)
sketch8.addGeometry(Part.LineSegment(Vector(-940, 800, 0), Vector(-140, 800, 0)), False)
sketch8.addGeometry(Part.LineSegment(Vector(-140, 800, 0), Vector(-140, 2100, 0)), False)
sketch8.addGeometry(Part.LineSegment(Vector(-140, 2100, 0), Vector(-940, 2100, 0)), False)
sketch8.addConstraint(Sketcher.Constraint("Coincident", 0, 2, 1, 1))
sketch8.addConstraint(Sketcher.Constraint("Coincident", 1, 2, 2, 1))
sketch8.addConstraint(Sketcher.Constraint("Coincident", 2, 2, 3, 1))
sketch8.addConstraint(Sketcher.Constraint("Coincident", 3, 2, 0, 1))
sketch8.addConstraint(Sketcher.Constraint("Coincident", 4, 2, 5, 1))
sketch8.addConstraint(Sketcher.Constraint("Coincident", 5, 2, 6, 1))
sketch8.addConstraint(Sketcher.Constraint("Coincident", 6, 2, 7, 1))
sketch8.addConstraint(Sketcher.Constraint("Coincident", 7, 2, 4, 1))
sketch8.addConstraint(Sketcher.Constraint("Vertical", 0))
sketch8.addConstraint(Sketcher.Constraint("Horizontal", 1))
sketch8.addConstraint(Sketcher.Constraint("Vertical", 2))
sketch8.addConstraint(Sketcher.Constraint("Horizontal", 3))
sketch8.addConstraint(Sketcher.Constraint("Vertical", 4))
sketch8.addConstraint(Sketcher.Constraint("Horizontal", 5))
sketch8.addConstraint(Sketcher.Constraint("Vertical", 6))
sketch8.addConstraint(Sketcher.Constraint("Horizontal", 7))
sketch8.addConstraint(Sketcher.Constraint("Horizontal", 1, 2, 4, 2))
sketch8.addConstraint(Sketcher.Constraint("Horizontal", 3, 2, 6, 2))
sketch8.addConstraint(Sketcher.Constraint("Equal", 3, 5))
sketch8.addConstraint(Sketcher.Constraint("DistanceX", 1, 1, 1, 2, Q("800 mm")))
sketch8.addConstraint(Sketcher.Constraint("DistanceY", 0, 2, 0, 1, Q("1300 mm")))
sketch8.addConstraint(Sketcher.Constraint("DistanceX", 0, 2, -1, 1, Q("2590 mm")))
sketch8.addConstraint(Sketcher.Constraint("DistanceY", -1, 1, 0, 2, Q("800 mm")))
sketch8.addConstraint(Sketcher.Constraint("DistanceX", 4, 2, -1, 1, Q("940 mm")))
pocket7 = body.newObject("PartDesign::Pocket", "Pocket006")
pocket7.Profile = sketch8
pocket7.Type = "ThroughAll"

sketch9 = body.newObject("Sketcher::SketchObject", "Sketch008")
sketch9.AttachmentSupport = (doc.getObject("XZ_Plane"), [""])
sketch9.MapMode = "FlatFace"
sketch9.AttachmentOffset = App.Placement(Vector(0, 0, 3245.958515), App.Rotation())
sketch9.addGeometry(Part.LineSegment(Vector(2410, 1950, 0), Vector(2410, 700, 0)), False)
sketch9.addGeometry(Part.LineSegment(Vector(2410, 700, 0), Vector(4050, 700, 0)), False)
sketch9.addGeometry(Part.LineSegment(Vector(4050, 700, 0), Vector(4050, 1950, 0)), False)
sketch9.addGeometry(Part.LineSegment(Vector(4050, 1950, 0), Vector(2410, 1950, 0)), False)
sketch9.addConstraint(Sketcher.Constraint("Coincident", 0, 2, 1, 1))
sketch9.addConstraint(Sketcher.Constraint("Coincident", 1, 2, 2, 1))
sketch9.addConstraint(Sketcher.Constraint("Coincident", 2, 2, 3, 1))
sketch9.addConstraint(Sketcher.Constraint("Coincident", 3, 2, 0, 1))
sketch9.addConstraint(Sketcher.Constraint("Vertical", 0))
sketch9.addConstraint(Sketcher.Constraint("Horizontal", 1))
sketch9.addConstraint(Sketcher.Constraint("Vertical", 2))
sketch9.addConstraint(Sketcher.Constraint("Horizontal", 3))
sketch9.addConstraint(Sketcher.Constraint("DistanceX", 1, 1, 1, 2, Q("1640 mm")))
sketch9.addConstraint(Sketcher.Constraint("DistanceY", 0, 2, 0, 1, Q("1250 mm")))
sketch9.addConstraint(Sketcher.Constraint("DistanceX", -1, 1, 0, 2, Q("2410 mm")))
sketch9.addConstraint(Sketcher.Constraint("DistanceY", -1, 1, 0, 2, Q("700 mm")))
pocket8 = body.newObject("PartDesign::Pocket", "Pocket007")
pocket8.Profile = sketch9
pocket8.Length = 350

sketch10 = body.newObject("Sketcher::SketchObject", "Sketch009")
sketch10.AttachmentSupport = (doc.getObject("XZ_Plane"), [""])
sketch10.MapMode = "FlatFace"
sketch10.AttachmentOffset = App.Placement(Vector(0, 0, 3475.958515), App.Rotation())
sketch10.addGeometry(Part.LineSegment(Vector(6700, 1950, 0), Vector(6700, 700, 0)), False)
sketch10.addGeometry(Part.LineSegment(Vector(6700, 700, 0), Vector(7920, 700, 0)), False)
sketch10.addGeometry(Part.LineSegment(Vector(7920, 700, 0), Vector(7920, 1950, 0)), False)
sketch10.addGeometry(Part.LineSegment(Vector(7920, 1950, 0), Vector(6700, 1950, 0)), False)
sketch10.addConstraint(Sketcher.Constraint("Coincident", 0, 2, 1, 1))
sketch10.addConstraint(Sketcher.Constraint("Coincident", 1, 2, 2, 1))
sketch10.addConstraint(Sketcher.Constraint("Coincident", 2, 2, 3, 1))
sketch10.addConstraint(Sketcher.Constraint("Coincident", 3, 2, 0, 1))
sketch10.addConstraint(Sketcher.Constraint("Vertical", 0))
sketch10.addConstraint(Sketcher.Constraint("Horizontal", 1))
sketch10.addConstraint(Sketcher.Constraint("Vertical", 2))
sketch10.addConstraint(Sketcher.Constraint("Horizontal", 3))
sketch10.addConstraint(Sketcher.Constraint("DistanceX", 1, 1, 1, 2, Q("1220 mm")))
sketch10.addConstraint(Sketcher.Constraint("DistanceY", 0, 2, 0, 1, Q("1250 mm")))
sketch10.addConstraint(Sketcher.Constraint("DistanceX", -1, 1, 0, 2, Q("6700 mm")))
sketch10.addConstraint(Sketcher.Constraint("DistanceY", -1, 1, 0, 2, Q("700 mm")))
pocket9 = body.newObject("PartDesign::Pocket", "Pocket008")
pocket9.Profile = sketch10
pocket9.Length = 360

sketch11 = body.newObject("Sketcher::SketchObject", "Sketch010")
sketch11.AttachmentSupport = (doc.getObject("XZ_Plane"), [""])
sketch11.MapMode = "FlatFace"
sketch11.AttachmentOffset = App.Placement(Vector(0, 0, -4864.041485), App.Rotation())
sketch11.addGeometry(Part.LineSegment(Vector(7880, 1900, 0), Vector(7880, 700, 0)), False)
sketch11.addGeometry(Part.LineSegment(Vector(7880, 700, 0), Vector(6650, 700, 0)), False)
sketch11.addGeometry(Part.LineSegment(Vector(6650, 700, 0), Vector(6650, 1900, 0)), False)
sketch11.addGeometry(Part.LineSegment(Vector(6650, 1900, 0), Vector(7880, 1900, 0)), False)
sketch11.addConstraint(Sketcher.Constraint("Coincident", 0, 2, 1, 1))
sketch11.addConstraint(Sketcher.Constraint("Coincident", 1, 2, 2, 1))
sketch11.addConstraint(Sketcher.Constraint("Coincident", 2, 2, 3, 1))
sketch11.addConstraint(Sketcher.Constraint("Coincident", 3, 2, 0, 1))
sketch11.addConstraint(Sketcher.Constraint("Vertical", 0))
sketch11.addConstraint(Sketcher.Constraint("Horizontal", 1))
sketch11.addConstraint(Sketcher.Constraint("Vertical", 2))
sketch11.addConstraint(Sketcher.Constraint("Horizontal", 3))
sketch11.addConstraint(Sketcher.Constraint("DistanceX", 1, 2, 1, 1, Q("1230 mm")))
sketch11.addConstraint(Sketcher.Constraint("DistanceY", 0, 2, 0, 1, Q("1200 mm")))
sketch11.addConstraint(Sketcher.Constraint("DistanceX", -1, 1, 0, 2, Q("7880 mm")))
sketch11.addConstraint(Sketcher.Constraint("DistanceY", -1, 1, 0, 2, Q("700 mm")))
pocket10 = body.newObject("PartDesign::Pocket", "Pocket009")
pocket10.Profile = sketch11
pocket10.Length = 300
pocket10.Reversed = True

sketch12 = body.newObject("Sketcher::SketchObject", "Sketch011")
sketch12.AttachmentSupport = (doc.getObject("XZ_Plane"), [""])
sketch12.MapMode = "FlatFace"
sketch12.AttachmentOffset = App.Placement(Vector(0, 0, -4744.041485), App.Rotation())
sketch12.addGeometry(Part.LineSegment(Vector(4150, 2080, 0), Vector(4150, 1020, 0)), False)
sketch12.addGeometry(Part.LineSegment(Vector(4150, 1020, 0), Vector(3050, 1020, 0)), False)
sketch12.addGeometry(Part.LineSegment(Vector(3050, 1020, 0), Vector(3050, 2080, 0)), False)
sketch12.addGeometry(Part.LineSegment(Vector(3050, 2080, 0), Vector(4150, 2080, 0)), False)
sketch12.addConstraint(Sketcher.Constraint("Coincident", 0, 2, 1, 1))
sketch12.addConstraint(Sketcher.Constraint("Coincident", 1, 2, 2, 1))
sketch12.addConstraint(Sketcher.Constraint("Coincident", 2, 2, 3, 1))
sketch12.addConstraint(Sketcher.Constraint("Coincident", 3, 2, 0, 1))
sketch12.addConstraint(Sketcher.Constraint("Vertical", 0))
sketch12.addConstraint(Sketcher.Constraint("Horizontal", 1))
sketch12.addConstraint(Sketcher.Constraint("Vertical", 2))
sketch12.addConstraint(Sketcher.Constraint("Horizontal", 3))
sketch12.addConstraint(Sketcher.Constraint("DistanceX", 1, 2, 1, 1, Q("1100 mm")))
sketch12.addConstraint(Sketcher.Constraint("DistanceY", 0, 2, 0, 1, Q("1060 mm")))
sketch12.addConstraint(Sketcher.Constraint("DistanceX", -1, 1, 0, 2, Q("4150 mm")))
sketch12.addConstraint(Sketcher.Constraint("DistanceY", -1, 1, 0, 2, Q("1020 mm")))
pocket11 = body.newObject("PartDesign::Pocket", "Pocket010")
pocket11.Profile = sketch12
pocket11.Length = 320
pocket11.Reversed = True

sketch13 = body.newObject("Sketcher::SketchObject", "Sketch012")
sketch13.AttachmentSupport = (doc.getObject("YZ_Plane"), [""])
sketch13.MapMode = "FlatFace"
sketch13.AttachmentOffset = App.Placement(Vector(0, 0, 890), App.Rotation())
sketch13.addGeometry(Part.LineSegment(Vector(-1936, 2100, 0), Vector(-1936, 0, 0)), False)
sketch13.addGeometry(Part.LineSegment(Vector(-1936, 0, 0), Vector(-2836, 0, 0)), False)
sketch13.addGeometry(Part.LineSegment(Vector(-2836, 0, 0), Vector(-2836, 2100, 0)), False)
sketch13.addGeometry(Part.LineSegment(Vector(-2836, 2100, 0), Vector(-1936, 2100, 0)), False)
sketch13.addConstraint(Sketcher.Constraint("Coincident", 0, 2, 1, 1))
sketch13.addConstraint(Sketcher.Constraint("Coincident", 1, 2, 2, 1))
sketch13.addConstraint(Sketcher.Constraint("Coincident", 2, 2, 3, 1))
sketch13.addConstraint(Sketcher.Constraint("Coincident", 3, 2, 0, 1))
sketch13.addConstraint(Sketcher.Constraint("Vertical", 0))
sketch13.addConstraint(Sketcher.Constraint("Horizontal", 1))
sketch13.addConstraint(Sketcher.Constraint("Vertical", 2))
sketch13.addConstraint(Sketcher.Constraint("Horizontal", 3))
sketch13.addConstraint(Sketcher.Constraint("PointOnObject", 0, 2, -1))
sketch13.addConstraint(Sketcher.Constraint("DistanceX", 1, 2, 1, 1, Q("900 mm")))
sketch13.addConstraint(Sketcher.Constraint("DistanceY", 0, 2, 0, 1, Q("2100 mm")))
sketch13.addConstraint(Sketcher.Constraint("DistanceX", 0, 2, -1, 1, Q("1935.958515 mm")))
pocket12 = body.newObject("PartDesign::Pocket", "Pocket011")
pocket12.Profile = sketch13
pocket12.Length = 240
pocket12.Reversed = True

sketch14 = body.newObject("Sketcher::SketchObject", "Sketch013")
sketch14.AttachmentSupport = (doc.getObject("YZ_Plane"), [""])
sketch14.MapMode = "FlatFace"
sketch14.AttachmentOffset = App.Placement(Vector(0, 0, 5905), App.Rotation())
sketch14.addGeometry(Part.LineSegment(Vector(790, 2000, 0), Vector(790, 0, 0)), False)
sketch14.addGeometry(Part.LineSegment(Vector(790, 0, 0), Vector(90, 0, 0)), False)
sketch14.addGeometry(Part.LineSegment(Vector(90, 0, 0), Vector(90, 2000, 0)), False)
sketch14.addGeometry(Part.LineSegment(Vector(90, 2000, 0), Vector(790, 2000, 0)), False)
sketch14.addConstraint(Sketcher.Constraint("Coincident", 0, 2, 1, 1))
sketch14.addConstraint(Sketcher.Constraint("Coincident", 1, 2, 2, 1))
sketch14.addConstraint(Sketcher.Constraint("Coincident", 2, 2, 3, 1))
sketch14.addConstraint(Sketcher.Constraint("Coincident", 3, 2, 0, 1))
sketch14.addConstraint(Sketcher.Constraint("Vertical", 0))
sketch14.addConstraint(Sketcher.Constraint("Horizontal", 1))
sketch14.addConstraint(Sketcher.Constraint("Vertical", 2))
sketch14.addConstraint(Sketcher.Constraint("Horizontal", 3))
sketch14.addConstraint(Sketcher.Constraint("PointOnObject", 0, 2, -1))
sketch14.addConstraint(Sketcher.Constraint("DistanceX", 1, 2, 1, 1, Q("700 mm")))
sketch14.addConstraint(Sketcher.Constraint("DistanceY", 0, 2, 0, 1, Q("2000 mm")))
sketch14.addConstraint(Sketcher.Constraint("DistanceX", -1, 1, 0, 2, Q("790 mm")))
pocket13 = body.newObject("PartDesign::Pocket", "Pocket012")
pocket13.Profile = sketch14
pocket13.Length = 120
pocket13.Reversed = True

sketch15 = body.newObject("Sketcher::SketchObject", "Sketch014")
sketch15.AttachmentSupport = (doc.getObject("YZ_Plane"), [""])
sketch15.MapMode = "FlatFace"
sketch15.AttachmentOffset = App.Placement(Vector(0, 0, 4695), App.Rotation())
sketch15.addGeometry(Part.LineSegment(Vector(1784, 2075, 0), Vector(1784, 0, 0)), False)
sketch15.addGeometry(Part.LineSegment(Vector(1784, 0, 0), Vector(1524, 0, 0)), False)
sketch15.addGeometry(Part.LineSegment(Vector(1524, 0, 0), Vector(1524, 2200, 0)), False)
sketch15.addGeometry(Part.LineSegment(Vector(1524, 2200, 0), Vector(4424, 2200, 0)), False)
sketch15.addGeometry(Part.LineSegment(Vector(4424, 2200, 0), Vector(4424, 2075, 0)), False)
sketch15.addGeometry(Part.LineSegment(Vector(4424, 2075, 0), Vector(1784, 2075, 0)), False)
sketch15.addConstraint(Sketcher.Constraint("Coincident", 0, 2, 1, 1))
sketch15.addConstraint(Sketcher.Constraint("Coincident", 1, 2, 2, 1))
sketch15.addConstraint(Sketcher.Constraint("Coincident", 2, 2, 3, 1))
sketch15.addConstraint(Sketcher.Constraint("Coincident", 3, 2, 4, 1))
sketch15.addConstraint(Sketcher.Constraint("Coincident", 4, 2, 5, 1))
sketch15.addConstraint(Sketcher.Constraint("Coincident", 5, 2, 0, 1))
sketch15.addConstraint(Sketcher.Constraint("Vertical", 0))
sketch15.addConstraint(Sketcher.Constraint("Horizontal", 1))
sketch15.addConstraint(Sketcher.Constraint("Vertical", 2))
sketch15.addConstraint(Sketcher.Constraint("Horizontal", 3))
sketch15.addConstraint(Sketcher.Constraint("Vertical", 4))
sketch15.addConstraint(Sketcher.Constraint("Horizontal", 5))
sketch15.addConstraint(Sketcher.Constraint("PointOnObject", 0, 2, -1))
sketch15.addConstraint(Sketcher.Constraint("DistanceX", 1, 2, 1, 1, Q("260 mm")))
sketch15.addConstraint(Sketcher.Constraint("DistanceX", 3, 1, 3, 2, Q("2900 mm")))
sketch15.addConstraint(Sketcher.Constraint("DistanceY", 0, 2, 0, 1, Q("2075 mm")))
sketch15.addConstraint(Sketcher.Constraint("DistanceY", 2, 1, 2, 2, Q("2200 mm")))
sketch15.addConstraint(Sketcher.Constraint("DistanceX", -1, 1, 0, 2, Q("1784.041485 mm")))
pad2 = body.newObject("PartDesign::Pad", "Pad001")
pad2.Profile = sketch15
pad2.Length = 125
pad2.Reversed = True

sketch16 = body.newObject("Sketcher::SketchObject", "Sketch015")
sketch16.AttachmentSupport = (doc.getObject("XY_Plane"), [""])
sketch16.MapMode = "FlatFace"
sketch16.AttachmentOffset = App.Placement(Vector(0, 0, 2075), App.Rotation())
sketch16.addGeometry(Part.LineSegment(Vector(4695, 4289, 0), Vector(4570, 4424, 0)), False)
sketch16.addGeometry(Part.LineSegment(Vector(4570, 4424, 0), Vector(4695, 4424, 0)), False)
sketch16.addGeometry(Part.LineSegment(Vector(4695, 4424, 0), Vector(4695, 4289, 0)), False)
sketch16.addConstraint(Sketcher.Constraint("Coincident", 0, 2, 1, 1))
sketch16.addConstraint(Sketcher.Constraint("Coincident", 1, 2, 2, 1))
sketch16.addConstraint(Sketcher.Constraint("Coincident", 2, 2, 0, 1))
sketch16.addConstraint(Sketcher.Constraint("Horizontal", 1))
sketch16.addConstraint(Sketcher.Constraint("Vertical", 2))
sketch16.addConstraint(Sketcher.Constraint("DistanceX", 1, 1, 1, 2, Q("125 mm")))
sketch16.addConstraint(Sketcher.Constraint("DistanceX", -1, 1, 0, 2, Q("4570 mm")))
sketch16.addConstraint(Sketcher.Constraint("DistanceY", 2, 2, 2, 1, Q("135.29942 mm")))
sketch16.addConstraint(Sketcher.Constraint("DistanceY", -1, 1, 0, 2, Q("4424.041485 mm")))
pad3 = body.newObject("PartDesign::Pad", "Pad002")
pad3.Profile = sketch16
pad3.Length = 2075
pad3.Reversed = True

doc.recompute()
